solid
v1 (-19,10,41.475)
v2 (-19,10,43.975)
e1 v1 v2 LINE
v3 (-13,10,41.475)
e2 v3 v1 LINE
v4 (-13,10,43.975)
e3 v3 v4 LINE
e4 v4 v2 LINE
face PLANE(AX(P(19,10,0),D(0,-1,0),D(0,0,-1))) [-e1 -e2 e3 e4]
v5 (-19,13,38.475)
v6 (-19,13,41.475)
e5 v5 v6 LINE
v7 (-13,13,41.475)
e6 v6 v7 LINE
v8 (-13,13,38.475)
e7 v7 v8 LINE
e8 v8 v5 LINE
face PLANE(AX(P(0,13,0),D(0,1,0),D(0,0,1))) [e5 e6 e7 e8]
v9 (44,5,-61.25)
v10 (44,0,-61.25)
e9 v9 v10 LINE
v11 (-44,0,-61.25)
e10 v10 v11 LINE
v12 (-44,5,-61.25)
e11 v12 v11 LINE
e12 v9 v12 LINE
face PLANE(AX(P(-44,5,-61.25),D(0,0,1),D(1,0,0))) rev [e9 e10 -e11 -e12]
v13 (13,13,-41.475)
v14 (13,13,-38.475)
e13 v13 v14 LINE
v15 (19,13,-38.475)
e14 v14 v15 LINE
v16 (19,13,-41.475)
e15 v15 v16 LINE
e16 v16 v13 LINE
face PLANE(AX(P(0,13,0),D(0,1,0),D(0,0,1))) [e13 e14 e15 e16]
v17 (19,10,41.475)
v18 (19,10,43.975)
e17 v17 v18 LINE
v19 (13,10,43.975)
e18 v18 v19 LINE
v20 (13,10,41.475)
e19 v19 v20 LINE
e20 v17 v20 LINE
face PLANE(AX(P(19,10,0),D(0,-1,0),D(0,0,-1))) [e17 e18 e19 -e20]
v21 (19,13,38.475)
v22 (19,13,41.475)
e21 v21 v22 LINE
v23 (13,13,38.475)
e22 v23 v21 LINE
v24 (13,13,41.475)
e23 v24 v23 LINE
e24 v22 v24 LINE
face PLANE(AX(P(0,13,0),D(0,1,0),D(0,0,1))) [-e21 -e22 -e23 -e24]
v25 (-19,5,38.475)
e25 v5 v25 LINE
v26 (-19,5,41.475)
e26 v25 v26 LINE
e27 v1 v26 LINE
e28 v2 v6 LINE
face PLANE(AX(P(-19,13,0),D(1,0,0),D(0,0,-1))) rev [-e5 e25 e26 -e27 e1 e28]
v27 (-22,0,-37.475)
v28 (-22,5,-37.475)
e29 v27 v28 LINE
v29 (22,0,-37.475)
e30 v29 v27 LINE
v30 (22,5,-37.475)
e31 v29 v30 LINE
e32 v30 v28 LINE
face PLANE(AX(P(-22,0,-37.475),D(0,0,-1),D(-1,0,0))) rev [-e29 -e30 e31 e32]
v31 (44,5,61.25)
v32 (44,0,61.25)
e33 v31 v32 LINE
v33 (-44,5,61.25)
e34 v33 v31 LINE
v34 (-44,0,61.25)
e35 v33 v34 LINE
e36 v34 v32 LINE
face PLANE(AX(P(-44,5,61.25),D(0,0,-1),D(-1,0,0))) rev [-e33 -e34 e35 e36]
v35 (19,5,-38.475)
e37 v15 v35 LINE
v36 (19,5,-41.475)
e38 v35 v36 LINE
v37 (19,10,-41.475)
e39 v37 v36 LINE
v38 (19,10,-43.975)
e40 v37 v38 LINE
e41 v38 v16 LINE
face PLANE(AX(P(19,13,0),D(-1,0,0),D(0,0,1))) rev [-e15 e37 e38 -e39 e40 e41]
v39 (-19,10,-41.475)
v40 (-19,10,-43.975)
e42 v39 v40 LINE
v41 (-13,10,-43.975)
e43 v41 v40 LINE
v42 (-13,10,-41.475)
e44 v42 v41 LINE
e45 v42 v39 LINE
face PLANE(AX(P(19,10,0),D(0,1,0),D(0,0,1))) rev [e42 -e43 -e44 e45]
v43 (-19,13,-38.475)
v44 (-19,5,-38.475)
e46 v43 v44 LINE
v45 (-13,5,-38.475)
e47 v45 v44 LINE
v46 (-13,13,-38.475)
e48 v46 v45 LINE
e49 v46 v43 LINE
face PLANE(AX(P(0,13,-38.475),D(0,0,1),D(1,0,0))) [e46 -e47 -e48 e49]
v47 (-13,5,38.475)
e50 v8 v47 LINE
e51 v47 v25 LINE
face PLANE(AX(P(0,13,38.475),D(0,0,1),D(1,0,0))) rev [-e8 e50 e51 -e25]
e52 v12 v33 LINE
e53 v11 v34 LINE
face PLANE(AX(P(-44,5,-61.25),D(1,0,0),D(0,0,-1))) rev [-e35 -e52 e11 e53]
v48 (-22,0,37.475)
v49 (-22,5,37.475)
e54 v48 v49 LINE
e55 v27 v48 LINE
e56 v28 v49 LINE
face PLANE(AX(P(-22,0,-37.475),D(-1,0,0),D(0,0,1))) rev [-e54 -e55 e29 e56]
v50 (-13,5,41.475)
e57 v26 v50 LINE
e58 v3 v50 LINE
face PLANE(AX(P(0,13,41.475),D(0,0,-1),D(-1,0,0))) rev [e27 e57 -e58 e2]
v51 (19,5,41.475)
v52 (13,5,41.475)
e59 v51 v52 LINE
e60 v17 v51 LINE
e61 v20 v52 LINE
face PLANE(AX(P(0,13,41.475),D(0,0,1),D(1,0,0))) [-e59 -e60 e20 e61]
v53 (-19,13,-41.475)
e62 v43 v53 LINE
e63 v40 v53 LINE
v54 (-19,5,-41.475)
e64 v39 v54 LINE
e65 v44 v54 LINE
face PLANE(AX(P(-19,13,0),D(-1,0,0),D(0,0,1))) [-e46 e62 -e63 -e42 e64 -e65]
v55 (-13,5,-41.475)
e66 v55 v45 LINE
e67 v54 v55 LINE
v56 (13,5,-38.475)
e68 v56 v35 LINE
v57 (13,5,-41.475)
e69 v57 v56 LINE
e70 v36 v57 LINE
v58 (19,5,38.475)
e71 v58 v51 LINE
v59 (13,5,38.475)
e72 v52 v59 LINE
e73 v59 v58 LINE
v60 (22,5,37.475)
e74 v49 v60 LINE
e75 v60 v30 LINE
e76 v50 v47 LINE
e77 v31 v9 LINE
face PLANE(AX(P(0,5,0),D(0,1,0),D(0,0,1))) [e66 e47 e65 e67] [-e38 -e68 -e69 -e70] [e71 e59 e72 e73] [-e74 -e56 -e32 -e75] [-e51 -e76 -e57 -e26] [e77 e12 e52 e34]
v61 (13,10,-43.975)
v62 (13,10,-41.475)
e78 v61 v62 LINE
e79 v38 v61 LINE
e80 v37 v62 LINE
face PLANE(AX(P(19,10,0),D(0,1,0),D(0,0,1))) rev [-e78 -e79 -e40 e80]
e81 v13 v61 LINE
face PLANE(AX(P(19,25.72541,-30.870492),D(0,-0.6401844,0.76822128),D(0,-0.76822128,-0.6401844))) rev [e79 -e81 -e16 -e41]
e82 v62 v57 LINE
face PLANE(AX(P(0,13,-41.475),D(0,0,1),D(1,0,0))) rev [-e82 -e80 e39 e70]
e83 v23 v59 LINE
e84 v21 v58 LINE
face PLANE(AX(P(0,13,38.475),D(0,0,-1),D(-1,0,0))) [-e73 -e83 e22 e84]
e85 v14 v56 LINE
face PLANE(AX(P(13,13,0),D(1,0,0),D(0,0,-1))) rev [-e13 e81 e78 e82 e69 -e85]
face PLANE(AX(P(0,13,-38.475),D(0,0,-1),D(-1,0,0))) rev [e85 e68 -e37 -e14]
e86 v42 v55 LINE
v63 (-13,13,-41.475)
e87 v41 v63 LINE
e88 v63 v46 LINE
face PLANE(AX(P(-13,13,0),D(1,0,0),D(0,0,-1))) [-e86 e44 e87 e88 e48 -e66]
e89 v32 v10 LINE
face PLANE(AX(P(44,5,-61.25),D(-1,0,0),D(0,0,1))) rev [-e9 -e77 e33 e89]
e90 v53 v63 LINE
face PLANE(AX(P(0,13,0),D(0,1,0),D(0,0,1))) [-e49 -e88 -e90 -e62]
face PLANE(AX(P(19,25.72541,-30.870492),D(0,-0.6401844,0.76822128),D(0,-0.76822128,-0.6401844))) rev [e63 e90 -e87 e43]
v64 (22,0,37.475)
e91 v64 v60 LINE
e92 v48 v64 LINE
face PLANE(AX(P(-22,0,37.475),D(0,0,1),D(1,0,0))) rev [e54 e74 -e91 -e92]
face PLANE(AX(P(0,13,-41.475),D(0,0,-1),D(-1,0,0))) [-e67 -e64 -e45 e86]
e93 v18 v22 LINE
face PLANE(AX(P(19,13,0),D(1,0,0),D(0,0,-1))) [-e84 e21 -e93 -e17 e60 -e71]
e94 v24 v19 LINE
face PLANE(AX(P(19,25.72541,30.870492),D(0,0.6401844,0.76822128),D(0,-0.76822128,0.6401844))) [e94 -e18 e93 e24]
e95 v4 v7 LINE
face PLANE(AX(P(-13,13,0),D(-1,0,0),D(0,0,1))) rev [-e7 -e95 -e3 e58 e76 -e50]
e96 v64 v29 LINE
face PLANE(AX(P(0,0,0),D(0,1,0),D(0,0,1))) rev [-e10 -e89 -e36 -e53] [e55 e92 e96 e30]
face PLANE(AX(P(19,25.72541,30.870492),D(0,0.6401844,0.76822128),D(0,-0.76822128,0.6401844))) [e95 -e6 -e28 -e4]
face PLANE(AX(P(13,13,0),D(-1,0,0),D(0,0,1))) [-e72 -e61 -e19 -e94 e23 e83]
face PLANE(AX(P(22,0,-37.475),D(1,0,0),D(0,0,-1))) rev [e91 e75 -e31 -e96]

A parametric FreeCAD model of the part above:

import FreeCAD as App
import Part
import Sketcher


def add_polygon(sketch, points):
    """Adds a closed chain of lines whose ends are joined by coincident constraints."""
    first, n = sketch.GeometryCount, len(points)
    for a, b in zip(points, points[1:] + points[:1]):
        sketch.addGeometry(Part.LineSegment(App.Vector(*a, 0), App.Vector(*b, 0)), False)
    for i in range(n):
        sketch.addConstraint(Sketcher.Constraint("Coincident", first + i, 2, first + (i + 1) % n, 1))

doc = App.newDocument("Part")
params = doc.addObject("Spreadsheet::Sheet", "Params")
for row, (alias, value) in enumerate([
    ("sketch1_width", "88 mm"),
    ("sketch1_height", "122.5 mm"),
    ("pad1_length", "5 mm"),
    ("sketch2_width", "44 mm"),
    ("sketch2_height", "74.95 mm"),
    ("pocket1_length", "5 mm"),
    ("sketch3_width", "6 mm"),
    ("sketch3_height", "3 mm"),
    ("pad2_length", "8 mm"),
    ("sketch4_width", "3 mm"),
    ("sketch4_height", "2.5 mm"),
    ("pad3_length", "38 mm"),
    ("sketch5_width", "26 mm"),
    ("sketch5_height", "87.95 mm"),
    ("pocket2_length", "19 mm"),
], start=1):
    params.set(f"A{row}", alias)
    params.set(f"B{row}", "=" + value)
    params.setAlias(f"B{row}", alias)

body = doc.addObject("PartDesign::Body", "Body")

# Sketch on XZ plane
sketch1 = body.newObject("Sketcher::SketchObject", "Sketch")
sketch1.AttachmentSupport = (doc.getObject("XZ_Plane"), [""])
sketch1.MapMode = "FlatFace"
add_polygon(sketch1, [(-44, -61), (-44, 61), (44, 61), (44, -61)])  # lines 0-3
sketch1.addConstraint([
    Sketcher.Constraint("Vertical", 0),
    Sketcher.Constraint("Horizontal", 1),
    Sketcher.Constraint("Vertical", 2),
    Sketcher.Constraint("Horizontal", 3),
    Sketcher.Constraint("Symmetric", 0, 2, 2, 2, -1, 1),
    Sketcher.Constraint("DistanceX", 1, 1, 1, 2, 88.0),
    Sketcher.Constraint("DistanceY", 0, 1, 0, 2, 122.5),
])
sketch1.setExpression("Constraints[9]", "Params.sketch1_width")
sketch1.setExpression("Constraints[10]", "Params.sketch1_height")
pad1 = body.newObject("PartDesign::Pad", "Pad")
pad1.Profile = sketch1
pad1.setExpression("Length", "Params.pad1_length")
pad1.Reversed = True

# Sketch on XZ plane
sketch2 = body.newObject("Sketcher::SketchObject", "Sketch001")
sketch2.AttachmentSupport = (doc.getObject("XZ_Plane"), [""])
sketch2.MapMode = "FlatFace"
sketch2.AttachmentOffset = App.Placement(App.Vector(0, 0, -5), App.Rotation())
add_polygon(sketch2, [(-22, -37), (-22, 37), (22, 37), (22, -37)])  # lines 0-3
sketch2.addConstraint([
    Sketcher.Constraint("Vertical", 0),
    Sketcher.Constraint("Horizontal", 1),
    Sketcher.Constraint("Vertical", 2),
    Sketcher.Constraint("Horizontal", 3),
    Sketcher.Constraint("Symmetric", 0, 2, 2, 2, -1, 1),
    Sketcher.Constraint("DistanceX", 1, 1, 1, 2, 44.0),
    Sketcher.Constraint("DistanceY", 0, 1, 0, 2, 74.95),
])
sketch2.setExpression("Constraints[9]", "Params.sketch2_width")
sketch2.setExpression("Constraints[10]", "Params.sketch2_height")
pocket1 = body.newObject("PartDesign::Pocket", "Pocket")
pocket1.Profile = sketch2
pocket1.setExpression("Length", "Params.pocket1_length")
pocket1.Reversed = True

# Sketch on XZ plane
sketch3 = body.newObject("Sketcher::SketchObject", "Sketch002")
sketch3.AttachmentSupport = (doc.getObject("XZ_Plane"), [""])
sketch3.MapMode = "FlatFace"
sketch3.AttachmentOffset = App.Placement(App.Vector(0, 0, -5), App.Rotation())
add_polygon(sketch3, [(-13, -38.5), (-13, -41.5), (-19, -41.5), (-19, -38.5)])  # lines 0-3
add_polygon(sketch3, [(19, -38.5), (19, -41.5), (13, -41.5), (13, -38.5)])  # lines 4-7
add_polygon(sketch3, [(-13, 41.5), (-13, 38.5), (-19, 38.5), (-19, 41.5)])  # lines 8-11
add_polygon(sketch3, [(19, 41.5), (19, 38.5), (13, 38.5), (13, 41.5)])  # lines 12-15
sketch3.addConstraint([
    Sketcher.Constraint("Vertical", 0),
    Sketcher.Constraint("Horizontal", 1),
    Sketcher.Constraint("Vertical", 2),
    Sketcher.Constraint("Horizontal", 3),
    Sketcher.Constraint("Vertical", 4),
    Sketcher.Constraint("Horizontal", 5),
    Sketcher.Constraint("Vertical", 6),
    Sketcher.Constraint("Horizontal", 7),
    Sketcher.Constraint("Vertical", 8),
    Sketcher.Constraint("Horizontal", 9),
    Sketcher.Constraint("Vertical", 10),
    Sketcher.Constraint("Horizontal", 11),
    Sketcher.Constraint("Vertical", 12),
    Sketcher.Constraint("Horizontal", 13),
    Sketcher.Constraint("Vertical", 14),
    Sketcher.Constraint("Horizontal", 15),
    Sketcher.Constraint("Symmetric", 6, 2, 8, 2, -1, 1),
    Sketcher.Constraint("Symmetric", 4, 2, 10, 2, -1, 1),
    Sketcher.Constraint("Symmetric", 2, 2, 12, 2, -1, 1),
    Sketcher.Constraint("Symmetric", 0, 2, 14, 2, -1, 1),
    Sketcher.Constraint("Symmetric", 1, 2, 4, 2, -2),
    Sketcher.Constraint("Symmetric", 3, 2, 6, 2, -2),
    Sketcher.Constraint("DistanceX", 1, 2, 1, 1, 6.0),
    Sketcher.Constraint("DistanceY", 0, 2, 0, 1, 3.0),
    Sketcher.Constraint("DistanceX", 0, 2, -1, 1, 13.0),
    Sketcher.Constraint("DistanceY", 3, 2, 8, 2, 76.95),
])
sketch3.setExpression("Constraints[38]", "Params.sketch3_width")
sketch3.setExpression("Constraints[39]", "Params.sketch3_height")
pad2 = body.newObject("PartDesign::Pad", "Pad001")
pad2.Profile = sketch3
pad2.setExpression("Length", "Params.pad2_length")
pad2.Reversed = True

# Sketch on YZ plane
sketch4 = body.newObject("Sketcher::SketchObject", "Sketch003")
sketch4.AttachmentSupport = (doc.getObject("YZ_Plane"), [""])
sketch4.MapMode = "FlatFace"
sketch4.AttachmentOffset = App.Placement(App.Vector(0, 0, -19), App.Rotation())
add_polygon(sketch4, [(10, -41.5), (13, -41.5), (10, -44)])  # lines 0-2
add_polygon(sketch4, [(10, 44), (13, 41.5), (10, 41.5)])  # lines 3-5
sketch4.addConstraint([
    Sketcher.Constraint("Horizontal", 0),
    Sketcher.Constraint("Vertical", 2),
    Sketcher.Constraint("Horizontal", 4),
    Sketcher.Constraint("Vertical", 5),
    Sketcher.Constraint("Symmetric", 0, 2, 3, 2, -1),
    Sketcher.Constraint("Symmetric", 1, 2, 5, 2, -1),
    Sketcher.Constraint("DistanceX", 0, 1, 0, 2, 3.0),
    Sketcher.Constraint("DistanceY", 2, 1, 2, 2, 2.5),
    Sketcher.Constraint("DistanceX", -1, 1, 0, 2, 13.0),
    Sketcher.Constraint("DistanceY", 0, 2, 3, 2, 82.95),
])
sketch4.setExpression("Constraints[12]", "Params.sketch4_width")
sketch4.setExpression("Constraints[13]", "Params.sketch4_height")
pad3 = body.newObject("PartDesign::Pad", "Pad002")
pad3.Profile = sketch4
pad3.setExpression("Length", "Params.pad3_length")

# Sketch on XZ plane
sketch5 = body.newObject("Sketcher::SketchObject", "Sketch004")
sketch5.AttachmentSupport = (doc.getObject("XZ_Plane"), [""])
sketch5.MapMode = "FlatFace"
sketch5.AttachmentOffset = App.Placement(App.Vector(0, 0, -5), App.Rotation())
add_polygon(sketch5, [(-13, -44), (-13, 44), (13, 44), (13, -44)])  # lines 0-3
sketch5.addConstraint([
    Sketcher.Constraint("Vertical", 0),
    Sketcher.Constraint("Horizontal", 1),
    Sketcher.Constraint("Vertical", 2),
    Sketcher.Constraint("Horizontal", 3),
    Sketcher.Constraint("Symmetric", 0, 2, 2, 2, -1, 1),
    Sketcher.Constraint("DistanceX", 1, 1, 1, 2, 26.0),
    Sketcher.Constraint("DistanceY", 0, 1, 0, 2, 87.95),
])
sketch5.setExpression("Constraints[9]", "Params.sketch5_width")
sketch5.setExpression("Constraints[10]", "Params.sketch5_height")
pocket2 = body.newObject("PartDesign::Pocket", "Pocket001")
pocket2.Profile = sketch5
pocket2.setExpression("Length", "Params.pocket2_length")

doc.recompute()
